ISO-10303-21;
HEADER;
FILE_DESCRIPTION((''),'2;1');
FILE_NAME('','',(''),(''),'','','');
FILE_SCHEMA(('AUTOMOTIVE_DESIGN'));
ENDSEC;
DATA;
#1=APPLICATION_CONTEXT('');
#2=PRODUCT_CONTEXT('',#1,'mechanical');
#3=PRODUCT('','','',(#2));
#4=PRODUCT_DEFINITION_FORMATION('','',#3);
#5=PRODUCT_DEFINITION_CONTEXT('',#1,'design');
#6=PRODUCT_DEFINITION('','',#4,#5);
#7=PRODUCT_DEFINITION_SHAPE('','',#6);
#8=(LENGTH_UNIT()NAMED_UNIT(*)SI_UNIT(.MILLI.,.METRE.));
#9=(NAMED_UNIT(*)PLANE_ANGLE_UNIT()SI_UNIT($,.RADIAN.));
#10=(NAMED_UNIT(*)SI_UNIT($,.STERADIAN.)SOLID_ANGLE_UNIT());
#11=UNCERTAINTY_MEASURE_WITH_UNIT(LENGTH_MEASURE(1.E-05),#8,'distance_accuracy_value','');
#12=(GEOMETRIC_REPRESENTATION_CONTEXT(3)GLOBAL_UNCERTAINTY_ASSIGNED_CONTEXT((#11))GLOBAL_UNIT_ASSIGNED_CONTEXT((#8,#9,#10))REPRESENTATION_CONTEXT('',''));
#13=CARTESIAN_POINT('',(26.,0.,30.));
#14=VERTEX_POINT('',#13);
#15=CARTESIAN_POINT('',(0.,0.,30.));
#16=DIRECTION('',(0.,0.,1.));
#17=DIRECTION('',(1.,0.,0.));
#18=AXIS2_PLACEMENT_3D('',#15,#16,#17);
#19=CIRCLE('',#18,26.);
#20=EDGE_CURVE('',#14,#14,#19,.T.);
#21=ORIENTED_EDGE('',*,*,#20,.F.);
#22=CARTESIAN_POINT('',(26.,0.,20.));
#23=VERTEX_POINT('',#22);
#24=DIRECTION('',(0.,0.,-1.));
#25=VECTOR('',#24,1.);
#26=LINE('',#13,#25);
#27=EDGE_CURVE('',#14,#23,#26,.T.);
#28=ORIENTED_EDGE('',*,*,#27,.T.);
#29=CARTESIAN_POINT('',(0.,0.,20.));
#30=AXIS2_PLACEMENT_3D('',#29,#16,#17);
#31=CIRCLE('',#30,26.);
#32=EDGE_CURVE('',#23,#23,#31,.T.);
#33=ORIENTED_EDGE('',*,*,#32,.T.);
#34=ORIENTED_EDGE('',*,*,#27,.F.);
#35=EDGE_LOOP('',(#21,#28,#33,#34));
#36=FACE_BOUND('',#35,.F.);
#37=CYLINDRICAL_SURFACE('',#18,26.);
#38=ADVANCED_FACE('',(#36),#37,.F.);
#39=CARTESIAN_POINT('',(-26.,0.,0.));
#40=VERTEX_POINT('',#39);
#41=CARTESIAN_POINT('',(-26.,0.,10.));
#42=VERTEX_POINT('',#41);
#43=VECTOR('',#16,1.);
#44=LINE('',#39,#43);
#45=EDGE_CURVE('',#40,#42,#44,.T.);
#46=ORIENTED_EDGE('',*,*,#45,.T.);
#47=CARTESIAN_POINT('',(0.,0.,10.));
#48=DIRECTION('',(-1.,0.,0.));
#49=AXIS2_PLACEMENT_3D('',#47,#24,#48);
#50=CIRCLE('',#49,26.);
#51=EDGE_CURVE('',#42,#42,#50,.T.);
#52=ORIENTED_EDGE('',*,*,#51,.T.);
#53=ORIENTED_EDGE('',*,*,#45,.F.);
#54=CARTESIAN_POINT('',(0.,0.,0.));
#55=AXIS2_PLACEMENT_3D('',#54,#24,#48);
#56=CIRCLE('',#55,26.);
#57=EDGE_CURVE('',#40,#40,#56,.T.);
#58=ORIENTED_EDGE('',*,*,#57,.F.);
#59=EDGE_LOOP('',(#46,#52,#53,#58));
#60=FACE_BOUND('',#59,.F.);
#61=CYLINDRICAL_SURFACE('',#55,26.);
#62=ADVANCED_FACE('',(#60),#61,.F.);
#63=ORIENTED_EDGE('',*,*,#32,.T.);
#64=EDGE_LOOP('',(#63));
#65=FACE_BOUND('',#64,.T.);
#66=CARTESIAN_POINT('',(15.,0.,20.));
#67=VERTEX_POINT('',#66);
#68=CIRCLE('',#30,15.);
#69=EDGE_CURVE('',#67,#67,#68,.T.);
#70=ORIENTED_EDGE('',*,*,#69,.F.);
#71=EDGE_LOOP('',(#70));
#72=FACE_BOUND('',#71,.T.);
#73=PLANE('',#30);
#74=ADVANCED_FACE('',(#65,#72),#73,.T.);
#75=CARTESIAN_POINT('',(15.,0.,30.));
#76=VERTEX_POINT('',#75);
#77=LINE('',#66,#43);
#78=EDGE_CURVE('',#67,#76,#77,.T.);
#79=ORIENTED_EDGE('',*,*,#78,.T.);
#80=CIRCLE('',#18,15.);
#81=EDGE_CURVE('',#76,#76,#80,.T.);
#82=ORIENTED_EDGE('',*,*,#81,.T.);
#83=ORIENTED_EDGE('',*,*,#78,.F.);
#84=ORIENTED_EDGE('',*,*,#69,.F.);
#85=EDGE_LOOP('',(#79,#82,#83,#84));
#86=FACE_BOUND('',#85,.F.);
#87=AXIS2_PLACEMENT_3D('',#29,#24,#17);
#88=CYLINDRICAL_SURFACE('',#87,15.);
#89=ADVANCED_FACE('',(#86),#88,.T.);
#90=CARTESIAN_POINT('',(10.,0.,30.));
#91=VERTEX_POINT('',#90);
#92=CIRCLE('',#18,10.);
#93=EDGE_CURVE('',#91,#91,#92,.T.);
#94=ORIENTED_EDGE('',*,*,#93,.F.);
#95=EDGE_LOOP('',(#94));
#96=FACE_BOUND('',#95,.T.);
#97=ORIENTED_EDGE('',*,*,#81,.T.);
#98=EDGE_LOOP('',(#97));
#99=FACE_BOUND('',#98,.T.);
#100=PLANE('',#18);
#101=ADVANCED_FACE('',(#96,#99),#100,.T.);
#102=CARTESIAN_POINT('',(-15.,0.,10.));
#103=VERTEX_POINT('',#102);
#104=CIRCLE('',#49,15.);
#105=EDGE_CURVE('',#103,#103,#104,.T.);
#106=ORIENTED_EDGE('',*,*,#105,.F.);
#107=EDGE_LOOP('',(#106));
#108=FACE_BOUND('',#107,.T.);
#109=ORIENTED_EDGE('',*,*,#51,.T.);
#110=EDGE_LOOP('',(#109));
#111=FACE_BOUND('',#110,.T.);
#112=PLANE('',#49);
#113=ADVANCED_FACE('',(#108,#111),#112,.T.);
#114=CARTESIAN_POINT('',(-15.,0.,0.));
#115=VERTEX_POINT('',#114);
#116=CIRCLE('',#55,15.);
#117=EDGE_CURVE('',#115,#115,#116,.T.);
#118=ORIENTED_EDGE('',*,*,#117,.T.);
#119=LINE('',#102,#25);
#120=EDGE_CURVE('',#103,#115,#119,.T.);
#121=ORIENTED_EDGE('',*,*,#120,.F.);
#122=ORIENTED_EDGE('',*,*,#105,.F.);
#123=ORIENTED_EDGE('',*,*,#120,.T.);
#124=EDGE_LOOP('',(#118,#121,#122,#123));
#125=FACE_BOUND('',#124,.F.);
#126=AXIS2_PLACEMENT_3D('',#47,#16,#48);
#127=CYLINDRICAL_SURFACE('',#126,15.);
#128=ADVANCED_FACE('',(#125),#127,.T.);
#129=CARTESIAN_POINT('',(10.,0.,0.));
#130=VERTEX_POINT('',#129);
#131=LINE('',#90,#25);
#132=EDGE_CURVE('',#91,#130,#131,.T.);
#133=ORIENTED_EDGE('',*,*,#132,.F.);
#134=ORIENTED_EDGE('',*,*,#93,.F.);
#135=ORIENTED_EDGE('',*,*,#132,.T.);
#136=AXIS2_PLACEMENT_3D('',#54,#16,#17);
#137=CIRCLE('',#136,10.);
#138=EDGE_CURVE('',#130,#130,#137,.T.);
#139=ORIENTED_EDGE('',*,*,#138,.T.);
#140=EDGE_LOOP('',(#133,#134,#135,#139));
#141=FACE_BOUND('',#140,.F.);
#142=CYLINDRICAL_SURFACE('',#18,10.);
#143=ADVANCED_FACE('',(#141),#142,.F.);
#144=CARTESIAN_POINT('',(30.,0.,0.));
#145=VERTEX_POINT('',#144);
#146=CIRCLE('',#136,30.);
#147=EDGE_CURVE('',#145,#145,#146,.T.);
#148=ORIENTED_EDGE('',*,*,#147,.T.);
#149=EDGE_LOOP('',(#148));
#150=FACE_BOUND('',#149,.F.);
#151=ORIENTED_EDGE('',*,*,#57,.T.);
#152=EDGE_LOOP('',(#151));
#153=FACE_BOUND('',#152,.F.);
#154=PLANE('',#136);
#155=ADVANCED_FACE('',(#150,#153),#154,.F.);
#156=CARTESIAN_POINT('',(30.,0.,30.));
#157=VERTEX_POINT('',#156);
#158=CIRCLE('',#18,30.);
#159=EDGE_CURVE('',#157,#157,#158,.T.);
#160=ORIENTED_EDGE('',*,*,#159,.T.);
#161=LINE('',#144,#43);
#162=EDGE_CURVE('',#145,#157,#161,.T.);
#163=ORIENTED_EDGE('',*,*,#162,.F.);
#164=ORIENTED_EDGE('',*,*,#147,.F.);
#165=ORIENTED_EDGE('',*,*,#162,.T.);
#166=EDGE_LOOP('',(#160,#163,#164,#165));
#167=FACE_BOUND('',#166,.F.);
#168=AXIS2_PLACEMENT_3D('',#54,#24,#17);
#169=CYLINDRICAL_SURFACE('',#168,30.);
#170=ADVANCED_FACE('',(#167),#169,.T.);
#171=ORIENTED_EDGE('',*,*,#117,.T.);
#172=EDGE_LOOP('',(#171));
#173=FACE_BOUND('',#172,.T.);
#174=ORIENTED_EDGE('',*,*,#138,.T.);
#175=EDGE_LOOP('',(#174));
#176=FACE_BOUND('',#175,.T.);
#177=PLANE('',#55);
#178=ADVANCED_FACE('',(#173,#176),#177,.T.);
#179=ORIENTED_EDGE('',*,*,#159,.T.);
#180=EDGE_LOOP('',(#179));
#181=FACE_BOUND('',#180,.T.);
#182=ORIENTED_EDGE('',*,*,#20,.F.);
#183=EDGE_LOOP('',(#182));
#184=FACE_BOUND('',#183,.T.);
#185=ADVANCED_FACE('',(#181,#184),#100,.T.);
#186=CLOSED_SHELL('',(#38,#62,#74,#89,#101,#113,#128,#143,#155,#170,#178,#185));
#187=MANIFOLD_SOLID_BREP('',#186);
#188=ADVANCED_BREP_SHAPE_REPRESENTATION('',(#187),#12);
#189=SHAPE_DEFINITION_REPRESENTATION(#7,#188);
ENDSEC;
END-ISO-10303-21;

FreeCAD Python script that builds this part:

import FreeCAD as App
import Part
import Sketcher
Q = App.Units.Quantity

doc = App.newDocument("Part")
body = doc.addObject("PartDesign::Body", "Body")

# Sketch on XY plane
sketch1 = body.newObject("Sketcher::SketchObject", "Sketch")
sketch1.AttachmentSupport = (doc.getObject("XY_Plane"), [""])
sketch1.MapMode = "FlatFace"
sketch1.addGeometry(Part.Circle(App.Vector(0, 0, 0), App.Vector(0, 0, 1), 30), False)
sketch1.addConstraint(Sketcher.Constraint("Coincident", 0, 3, -1, 1))
sketch1.addConstraint(Sketcher.Constraint("Diameter", 0, Q("60 mm")))
pad1 = body.newObject("PartDesign::Pad", "Pad")
pad1.Profile = sketch1
pad1.Length = 30

# Sketch on XY plane
sketch2 = body.newObject("Sketcher::SketchObject", "Sketch001")
sketch2.AttachmentSupport = (doc.getObject("XY_Plane"), [""])
sketch2.MapMode = "FlatFace"
sketch2.AttachmentOffset = App.Placement(App.Vector(0, 0, 30), App.Rotation())
sketch2.addGeometry(Part.Circle(App.Vector(0, 0, 0), App.Vector(0, 0, 1), 26), False)
sketch2.addConstraint(Sketcher.Constraint("Coincident", 0, 3, -1, 1))
sketch2.addConstraint(Sketcher.Constraint("Diameter", 0, Q("52 mm")))
pocket1 = body.newObject("PartDesign::Pocket", "Pocket")
pocket1.Profile = sketch2
pocket1.Length = 10

# Sketch on XY plane
sketch3 = body.newObject("Sketcher::SketchObject", "Sketch002")
sketch3.AttachmentSupport = (doc.getObject("XY_Plane"), [""])
sketch3.MapMode = "FlatFace"
sketch3.addGeometry(Part.Circle(App.Vector(0, 0, 0), App.Vector(0, 0, 1), 26), False)
sketch3.addConstraint(Sketcher.Constraint("Coincident", 0, 3, -1, 1))
sketch3.addConstraint(Sketcher.Constraint("Diameter", 0, Q("52 mm")))
pocket2 = body.newObject("PartDesign::Pocket", "Pocket001")
pocket2.Profile = sketch3
pocket2.Length = 10
pocket2.Reversed = True

# Sketch on XY plane
sketch4 = body.newObject("Sketcher::SketchObject", "Sketch003")
sketch4.AttachmentSupport = (doc.getObject("XY_Plane"), [""])
sketch4.MapMode = "FlatFace"
sketch4.AttachmentOffset = App.Placement(App.Vector(0, 0, 10), App.Rotation())
sketch4.addGeometry(Part.Circle(App.Vector(0, 0, 0), App.Vector(0, 0, 1), 15), False)
sketch4.addConstraint(Sketcher.Constraint("Coincident", 0, 3, -1, 1))
sketch4.addConstraint(Sketcher.Constraint("Diameter", 0, Q("30 mm")))
pad2 = body.newObject("PartDesign::Pad", "Pad001")
pad2.Profile = sketch4
pad2.Length = 10
pad2.Reversed = True

# Sketch on XY plane
sketch5 = body.newObject("Sketcher::SketchObject", "Sketch004")
sketch5.AttachmentSupport = (doc.getObject("XY_Plane"), [""])
sketch5.MapMode = "FlatFace"
sketch5.AttachmentOffset = App.Placement(App.Vector(0, 0, 20), App.Rotation())
sketch5.addGeometry(Part.Circle(App.Vector(0, 0, 0), App.Vector(0, 0, 1), 15), False)
sketch5.addConstraint(Sketcher.Constraint("Coincident", 0, 3, -1, 1))
sketch5.addConstraint(Sketcher.Constraint("Diameter", 0, Q("30 mm")))
pad3 = body.newObject("PartDesign::Pad", "Pad002")
pad3.Profile = sketch5
pad3.Length = 10

# Sketch on XY plane
sketch6 = body.newObject("Sketcher::SketchObject", "Sketch005")
sketch6.AttachmentSupport = (doc.getObject("XY_Plane"), [""])
sketch6.MapMode = "FlatFace"
sketch6.AttachmentOffset = App.Placement(App.Vector(0, 0, 30), App.Rotation())
sketch6.addGeometry(Part.Circle(App.Vector(0, 0, 0), App.Vector(0, 0, 1), 10), False)
sketch6.addConstraint(Sketcher.Constraint("Coincident", 0, 3, -1, 1))
sketch6.addConstraint(Sketcher.Constraint("Diameter", 0, Q("20 mm")))
pocket3 = body.newObject("PartDesign::Pocket", "Pocket002")
pocket3.Profile = sketch6
pocket3.Length = 30

doc.recompute()
